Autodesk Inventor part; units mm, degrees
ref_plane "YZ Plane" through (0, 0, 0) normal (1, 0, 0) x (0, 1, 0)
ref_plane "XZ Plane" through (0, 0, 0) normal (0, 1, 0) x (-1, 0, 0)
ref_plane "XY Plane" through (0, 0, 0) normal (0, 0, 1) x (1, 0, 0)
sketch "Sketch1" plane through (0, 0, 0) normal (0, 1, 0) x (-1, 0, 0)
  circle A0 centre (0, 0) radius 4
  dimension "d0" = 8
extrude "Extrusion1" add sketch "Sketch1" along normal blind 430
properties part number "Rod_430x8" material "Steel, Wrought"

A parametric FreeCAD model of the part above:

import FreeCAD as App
import Part
import Sketcher

V = App.Vector

doc = App.newDocument("Part")
body = doc.addObject("PartDesign::Body", "Body")

sketch1 = doc.addObject("Sketcher::SketchObject", "Sketch")
body.addObject(sketch1)
sketch1.AttachmentSupport = (doc.XZ_Plane, [""])
sketch1.MapMode = "FlatFace"
sketch1.addGeometry(Part.Circle(V(0, 0, 0), V(0, 0, 1), 4), False)
sketch1.addConstraint([
    Sketcher.Constraint("Coincident", 0, 3, -1, 1),
    Sketcher.Constraint("Diameter", 0, 8.0),
])
pad1 = doc.addObject("PartDesign::Pad", "Pad")
body.addObject(pad1)
pad1.Profile = sketch1
pad1.Length = 430
pad1.Reversed = True

doc.recompute()
